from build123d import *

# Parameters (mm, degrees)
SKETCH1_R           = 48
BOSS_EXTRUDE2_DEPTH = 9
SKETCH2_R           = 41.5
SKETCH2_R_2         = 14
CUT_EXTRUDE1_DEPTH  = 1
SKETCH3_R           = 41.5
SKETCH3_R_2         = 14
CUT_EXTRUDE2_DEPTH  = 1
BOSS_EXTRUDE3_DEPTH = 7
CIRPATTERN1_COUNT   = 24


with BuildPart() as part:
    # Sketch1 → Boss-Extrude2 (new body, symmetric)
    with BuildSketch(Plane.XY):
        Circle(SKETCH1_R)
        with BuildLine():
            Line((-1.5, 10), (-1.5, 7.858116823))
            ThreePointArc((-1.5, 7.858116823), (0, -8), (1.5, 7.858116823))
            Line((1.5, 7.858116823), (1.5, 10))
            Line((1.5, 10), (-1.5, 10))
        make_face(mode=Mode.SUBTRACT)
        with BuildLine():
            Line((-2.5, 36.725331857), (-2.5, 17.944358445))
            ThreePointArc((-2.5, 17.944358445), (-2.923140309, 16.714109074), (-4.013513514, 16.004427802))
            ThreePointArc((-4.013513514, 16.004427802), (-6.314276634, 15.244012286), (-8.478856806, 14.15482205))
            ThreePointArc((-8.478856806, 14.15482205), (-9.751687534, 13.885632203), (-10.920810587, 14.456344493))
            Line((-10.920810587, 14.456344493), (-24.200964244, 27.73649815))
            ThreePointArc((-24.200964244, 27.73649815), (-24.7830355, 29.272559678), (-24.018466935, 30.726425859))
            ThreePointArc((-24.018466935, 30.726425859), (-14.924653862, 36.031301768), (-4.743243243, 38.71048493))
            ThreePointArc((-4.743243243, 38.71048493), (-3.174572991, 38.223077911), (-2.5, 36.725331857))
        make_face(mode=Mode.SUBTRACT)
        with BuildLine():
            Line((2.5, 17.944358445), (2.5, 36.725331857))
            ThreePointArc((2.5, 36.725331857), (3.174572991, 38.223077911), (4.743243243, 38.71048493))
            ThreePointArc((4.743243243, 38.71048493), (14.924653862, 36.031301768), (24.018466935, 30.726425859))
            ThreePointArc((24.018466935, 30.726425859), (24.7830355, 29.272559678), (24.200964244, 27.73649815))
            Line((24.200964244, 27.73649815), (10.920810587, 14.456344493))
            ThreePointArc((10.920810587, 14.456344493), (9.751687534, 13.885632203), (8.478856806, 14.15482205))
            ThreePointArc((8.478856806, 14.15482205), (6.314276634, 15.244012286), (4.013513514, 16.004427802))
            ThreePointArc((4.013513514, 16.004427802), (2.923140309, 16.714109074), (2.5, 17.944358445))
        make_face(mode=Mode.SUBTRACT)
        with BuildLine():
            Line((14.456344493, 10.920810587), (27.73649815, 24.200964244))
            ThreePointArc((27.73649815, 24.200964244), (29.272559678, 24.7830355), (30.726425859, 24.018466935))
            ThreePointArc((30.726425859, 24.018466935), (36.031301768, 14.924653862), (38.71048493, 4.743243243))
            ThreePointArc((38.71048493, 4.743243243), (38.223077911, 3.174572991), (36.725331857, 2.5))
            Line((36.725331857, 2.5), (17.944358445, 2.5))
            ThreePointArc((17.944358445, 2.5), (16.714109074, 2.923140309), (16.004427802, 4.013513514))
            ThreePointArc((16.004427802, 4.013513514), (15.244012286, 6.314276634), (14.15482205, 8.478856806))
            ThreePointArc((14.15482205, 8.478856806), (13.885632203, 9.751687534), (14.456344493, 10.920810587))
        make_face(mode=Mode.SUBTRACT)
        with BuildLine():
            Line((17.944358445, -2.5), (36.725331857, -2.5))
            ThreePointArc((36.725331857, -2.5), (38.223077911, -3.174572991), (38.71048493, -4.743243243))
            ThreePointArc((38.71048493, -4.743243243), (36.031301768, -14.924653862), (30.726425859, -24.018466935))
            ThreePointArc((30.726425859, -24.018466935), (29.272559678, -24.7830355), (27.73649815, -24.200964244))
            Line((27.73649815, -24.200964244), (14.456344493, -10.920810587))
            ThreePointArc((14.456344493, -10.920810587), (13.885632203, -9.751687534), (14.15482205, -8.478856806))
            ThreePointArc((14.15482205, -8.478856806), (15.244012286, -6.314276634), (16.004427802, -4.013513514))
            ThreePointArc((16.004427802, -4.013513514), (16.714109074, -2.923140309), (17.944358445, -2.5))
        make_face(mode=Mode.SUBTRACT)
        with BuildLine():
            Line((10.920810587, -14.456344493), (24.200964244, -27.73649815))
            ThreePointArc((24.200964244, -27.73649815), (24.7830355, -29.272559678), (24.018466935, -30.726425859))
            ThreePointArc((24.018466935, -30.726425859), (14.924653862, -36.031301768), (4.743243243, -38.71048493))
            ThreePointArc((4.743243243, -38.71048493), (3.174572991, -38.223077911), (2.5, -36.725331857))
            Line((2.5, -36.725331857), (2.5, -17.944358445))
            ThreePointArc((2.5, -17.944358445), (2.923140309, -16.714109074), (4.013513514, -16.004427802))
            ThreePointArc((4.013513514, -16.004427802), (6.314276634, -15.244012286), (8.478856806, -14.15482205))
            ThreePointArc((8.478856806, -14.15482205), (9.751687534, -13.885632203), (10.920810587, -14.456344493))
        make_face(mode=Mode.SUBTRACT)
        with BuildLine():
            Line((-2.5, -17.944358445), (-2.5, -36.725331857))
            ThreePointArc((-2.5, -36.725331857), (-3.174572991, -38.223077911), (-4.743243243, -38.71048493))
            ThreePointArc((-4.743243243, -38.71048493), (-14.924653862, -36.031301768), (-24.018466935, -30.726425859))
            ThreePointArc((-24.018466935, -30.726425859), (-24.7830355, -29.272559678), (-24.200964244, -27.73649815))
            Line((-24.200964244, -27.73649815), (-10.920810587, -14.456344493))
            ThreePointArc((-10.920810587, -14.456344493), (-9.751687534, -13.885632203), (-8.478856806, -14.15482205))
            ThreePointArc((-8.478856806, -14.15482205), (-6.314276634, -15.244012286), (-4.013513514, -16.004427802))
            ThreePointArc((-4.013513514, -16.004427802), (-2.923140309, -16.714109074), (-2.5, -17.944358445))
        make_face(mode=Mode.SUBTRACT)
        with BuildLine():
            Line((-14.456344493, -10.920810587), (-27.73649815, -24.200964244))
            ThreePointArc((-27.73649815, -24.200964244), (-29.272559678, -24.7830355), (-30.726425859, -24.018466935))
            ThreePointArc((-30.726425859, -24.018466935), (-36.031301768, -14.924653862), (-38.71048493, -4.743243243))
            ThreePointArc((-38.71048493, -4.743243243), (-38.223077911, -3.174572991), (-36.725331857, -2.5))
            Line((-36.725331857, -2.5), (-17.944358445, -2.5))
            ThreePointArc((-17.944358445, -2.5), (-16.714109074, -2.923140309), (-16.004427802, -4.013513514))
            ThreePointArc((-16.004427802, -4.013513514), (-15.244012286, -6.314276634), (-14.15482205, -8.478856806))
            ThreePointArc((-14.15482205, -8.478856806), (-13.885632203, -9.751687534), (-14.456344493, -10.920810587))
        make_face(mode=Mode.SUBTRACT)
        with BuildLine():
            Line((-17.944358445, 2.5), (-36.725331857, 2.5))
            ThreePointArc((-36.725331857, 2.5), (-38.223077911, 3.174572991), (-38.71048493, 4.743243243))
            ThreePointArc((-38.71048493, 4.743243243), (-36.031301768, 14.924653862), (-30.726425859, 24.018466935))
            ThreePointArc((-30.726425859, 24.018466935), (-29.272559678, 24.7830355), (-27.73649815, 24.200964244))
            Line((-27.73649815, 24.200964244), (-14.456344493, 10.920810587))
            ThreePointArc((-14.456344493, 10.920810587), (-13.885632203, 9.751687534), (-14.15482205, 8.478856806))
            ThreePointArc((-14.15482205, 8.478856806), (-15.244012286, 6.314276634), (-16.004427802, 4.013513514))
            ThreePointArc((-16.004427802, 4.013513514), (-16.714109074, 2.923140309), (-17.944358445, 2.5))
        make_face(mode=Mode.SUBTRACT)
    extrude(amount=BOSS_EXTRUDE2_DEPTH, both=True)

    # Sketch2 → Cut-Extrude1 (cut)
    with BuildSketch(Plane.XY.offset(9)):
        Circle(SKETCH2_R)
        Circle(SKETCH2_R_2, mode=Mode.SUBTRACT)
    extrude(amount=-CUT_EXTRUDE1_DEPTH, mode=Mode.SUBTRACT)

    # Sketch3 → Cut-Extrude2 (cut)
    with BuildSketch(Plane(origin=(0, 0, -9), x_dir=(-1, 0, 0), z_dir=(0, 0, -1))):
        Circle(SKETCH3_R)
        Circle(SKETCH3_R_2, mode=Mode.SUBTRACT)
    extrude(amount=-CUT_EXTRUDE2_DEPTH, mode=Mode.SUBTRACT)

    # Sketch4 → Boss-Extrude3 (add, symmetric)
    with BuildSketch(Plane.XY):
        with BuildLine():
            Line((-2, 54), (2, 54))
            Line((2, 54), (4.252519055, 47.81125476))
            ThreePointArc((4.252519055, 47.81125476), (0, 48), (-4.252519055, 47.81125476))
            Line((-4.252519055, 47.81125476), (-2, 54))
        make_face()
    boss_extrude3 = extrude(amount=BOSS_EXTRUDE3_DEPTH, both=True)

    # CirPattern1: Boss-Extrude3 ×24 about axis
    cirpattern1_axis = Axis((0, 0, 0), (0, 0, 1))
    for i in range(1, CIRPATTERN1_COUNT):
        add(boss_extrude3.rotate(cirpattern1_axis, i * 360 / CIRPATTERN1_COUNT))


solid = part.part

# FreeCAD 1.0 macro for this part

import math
import FreeCAD as App
import Part
import Sketcher

V = App.Vector
Q = App.Units.Quantity

doc = App.newDocument("Part")
params = doc.addObject("Spreadsheet::Sheet", "Params")
for row, (alias, value) in enumerate([
    ("sketch1_diameter", "96 mm"),
    ("sketch1_radius", "2 mm"),
    ("sketch1_radius2", "39 mm"),
    ("sketch1_radius3", "8 mm"),
    ("sketch1_radius4", "16.5 mm"),
    ("pad1_length", "18 mm"),
    ("sketch2_diameter", "83 mm"),
    ("sketch2_diameter2", "28 mm"),
    ("pocket1_length", "1 mm"),
    ("sketch3_diameter", "83 mm"),
    ("sketch3_diameter2", "28 mm"),
    ("pocket2_length", "1 mm"),
    ("sketch4_radius", "48 mm"),
    ("sketch4_width", "4 mm"),
    ("pad2_length", "14 mm"),
], start=1):
    params.set(f"A{row}", alias)
    params.set(f"B{row}", "=" + value)
    params.setAlias(f"B{row}", alias)

body = doc.addObject("PartDesign::Body", "Body")

sketch1 = body.newObject("Sketcher::SketchObject", "Sketch")
sketch1.AttachmentSupport = (doc.getObject("XY_Plane"), [""])
sketch1.MapMode = "FlatFace"
sketch1.addGeometry(Part.Circle(V(0, 0, 0), V(0, 0, 1), 48), False)
sketch1.addGeometry(Part.ArcOfCircle(Part.Circle(V(-4.5, -17.944358, 0), V(0, 0, 1), 2), math.radians(0), math.radians(75.921961)), False)
sketch1.addGeometry(Part.LineSegment(V(-2.5, -17.944358, 0), V(-2.5, -36.725332, 0)), False)
sketch1.addGeometry(Part.ArcOfCircle(Part.Circle(V(-4.5, -36.725332, 0), V(0, 0, 1), 2), math.radians(-96.9857), math.radians(0)), False)
sketch1.addGeometry(Part.ArcOfCircle(Part.Circle(V(0, 0, 0), V(0, 0, 1), 39), math.radians(-128.0143), math.radians(-96.9857)), False)
sketch1.addGeometry(Part.ArcOfCircle(Part.Circle(V(-22.786751, -29.150712, 0), V(0, 0, 1), 2), math.radians(135), math.radians(231.9857)), False)
sketch1.addGeometry(Part.LineSegment(V(-24.200964, -27.736498, 0), V(-10.920811, -14.456344, 0)), False)
sketch1.addGeometry(Part.ArcOfCircle(Part.Circle(V(-9.506597, -15.870558, 0), V(0, 0, 1), 2), math.radians(59.078039), math.radians(135)), False)
sketch1.addGeometry(Part.ArcOfCircle(Part.Circle(V(0, 0, 0), V(0, 0, 1), 16.5), math.radians(-120.921961), math.radians(-104.078039)), False)
sketch1.addGeometry(Part.ArcOfCircle(Part.Circle(V(-15.870558, -9.506597, 0), V(0, 0, 1), 2), math.radians(-45), math.radians(30.921961)), False)
sketch1.addGeometry(Part.LineSegment(V(-14.456344, -10.920811, 0), V(-27.736498, -24.200964, 0)), False)
sketch1.addGeometry(Part.ArcOfCircle(Part.Circle(V(-29.150712, -22.786751, 0), V(0, 0, 1), 2), math.radians(-141.9857), math.radians(-45)), False)
sketch1.addGeometry(Part.ArcOfCircle(Part.Circle(V(0, 0, 0), V(0, 0, 1), 39), math.radians(-173.0143), math.radians(-141.9857)), False)
sketch1.addGeometry(Part.ArcOfCircle(Part.Circle(V(-36.725332, -4.5, 0), V(0, 0, 1), 2), math.radians(90), math.radians(186.9857)), False)
sketch1.addGeometry(Part.LineSegment(V(-36.725332, -2.5, 0), V(-17.944358, -2.5, 0)), False)
sketch1.addGeometry(Part.ArcOfCircle(Part.Circle(V(-17.944358, -4.5, 0), V(0, 0, 1), 2), math.radians(14.078039), math.radians(90)), False)
sketch1.addGeometry(Part.ArcOfCircle(Part.Circle(V(0, 0, 0), V(0, 0, 1), 16.5), math.radians(-165.921961), math.radians(-149.078039)), False)
sketch1.addGeometry(Part.ArcOfCircle(Part.Circle(V(9.506597, -15.870558, 0), V(0, 0, 1), 2), math.radians(45), math.radians(120.921961)), False)
sketch1.addGeometry(Part.LineSegment(V(10.920811, -14.456344, 0), V(24.200964, -27.736498, 0)), False)
sketch1.addGeometry(Part.ArcOfCircle(Part.Circle(V(22.786751, -29.150712, 0), V(0, 0, 1), 2), math.radians(-51.9857), math.radians(45)), False)
sketch1.addGeometry(Part.ArcOfCircle(Part.Circle(V(0, 0, 0), V(0, 0, 1), 39), math.radians(-83.0143), math.radians(-51.9857)), False)
sketch1.addGeometry(Part.ArcOfCircle(Part.Circle(V(4.5, -36.725332, 0), V(0, 0, 1), 2), math.radians(-180), math.radians(-83.0143)), False)
sketch1.addGeometry(Part.LineSegment(V(2.5, -36.725332, 0), V(2.5, -17.944358, 0)), False)
sketch1.addGeometry(Part.ArcOfCircle(Part.Circle(V(4.5, -17.944358, 0), V(0, 0, 1), 2), math.radians(104.078039), math.radians(180)), False)
sketch1.addGeometry(Part.ArcOfCircle(Part.Circle(V(0, 0, 0), V(0, 0, 1), 16.5), math.radians(-75.921961), math.radians(-59.078039)), False)
sketch1.addGeometry(Part.ArcOfCircle(Part.Circle(V(17.944358, -4.5, 0), V(0, 0, 1), 2), math.radians(90), math.radians(165.921961)), False)
sketch1.addGeometry(Part.LineSegment(V(17.944358, -2.5, 0), V(36.725332, -2.5, 0)), False)
sketch1.addGeometry(Part.ArcOfCircle(Part.Circle(V(36.725332, -4.5, 0), V(0, 0, 1), 2), math.radians(-6.9857), math.radians(90)), False)
sketch1.addGeometry(Part.ArcOfCircle(Part.Circle(V(0, 0, 0), V(0, 0, 1), 39), math.radians(-38.0143), math.radians(-6.9857)), False)
sketch1.addGeometry(Part.ArcOfCircle(Part.Circle(V(29.150712, -22.786751, 0), V(0, 0, 1), 2), math.radians(-135), math.radians(-38.0143)), False)
sketch1.addGeometry(Part.LineSegment(V(27.736498, -24.200964, 0), V(14.456344, -10.920811, 0)), False)
sketch1.addGeometry(Part.ArcOfCircle(Part.Circle(V(15.870558, -9.506597, 0), V(0, 0, 1), 2), math.radians(149.078039), math.radians(225)), False)
sketch1.addGeometry(Part.ArcOfCircle(Part.Circle(V(0, 0, 0), V(0, 0, 1), 16.5), math.radians(-30.921961), math.radians(-14.078039)), False)
sketch1.addGeometry(Part.ArcOfCircle(Part.Circle(V(-17.944358, 4.5, 0), V(0, 0, 1), 2), math.radians(-90), math.radians(-14.078039)), False)
sketch1.addGeometry(Part.LineSegment(V(-17.944358, 2.5, 0), V(-36.725332, 2.5, 0)), False)
sketch1.addGeometry(Part.ArcOfCircle(Part.Circle(V(-36.725332, 4.5, 0), V(0, 0, 1), 2), math.radians(173.0143), math.radians(270)), False)
sketch1.addGeometry(Part.ArcOfCircle(Part.Circle(V(0, 0, 0), V(0, 0, 1), 39), math.radians(141.9857), math.radians(173.0143)), False)
sketch1.addGeometry(Part.ArcOfCircle(Part.Circle(V(-29.150712, 22.786751, 0), V(0, 0, 1), 2), math.radians(45), math.radians(141.9857)), False)
sketch1.addGeometry(Part.LineSegment(V(-27.736498, 24.200964, 0), V(-14.456344, 10.920811, 0)), False)
sketch1.addGeometry(Part.ArcOfCircle(Part.Circle(V(-15.870558, 9.506597, 0), V(0, 0, 1), 2), math.radians(-30.921961), math.radians(45)), False)
sketch1.addGeometry(Part.ArcOfCircle(Part.Circle(V(0, 0, 0), V(0, 0, 1), 16.5), math.radians(149.078039), math.radians(165.921961)), False)
sketch1.addGeometry(Part.ArcOfCircle(Part.Circle(V(-4.5, 36.725332, 0), V(0, 0, 1), 2), math.radians(0), math.radians(96.9857)), False)
sketch1.addGeometry(Part.LineSegment(V(-2.5, 36.725332, 0), V(-2.5, 17.944358, 0)), False)
sketch1.addGeometry(Part.ArcOfCircle(Part.Circle(V(-4.5, 17.944358, 0), V(0, 0, 1), 2), math.radians(-75.921961), math.radians(0)), False)
sketch1.addGeometry(Part.ArcOfCircle(Part.Circle(V(0, 0, 0), V(0, 0, 1), 16.5), math.radians(104.078039), math.radians(120.921961)), False)
sketch1.addGeometry(Part.ArcOfCircle(Part.Circle(V(-9.506597, 15.870558, 0), V(0, 0, 1), 2), math.radians(-135), math.radians(-59.078039)), False)
sketch1.addGeometry(Part.LineSegment(V(-10.920811, 14.456344, 0), V(-24.200964, 27.736498, 0)), False)
sketch1.addGeometry(Part.ArcOfCircle(Part.Circle(V(-22.786751, 29.150712, 0), V(0, 0, 1), 2), math.radians(128.0143), math.radians(225)), False)
sketch1.addGeometry(Part.ArcOfCircle(Part.Circle(V(0, 0, 0), V(0, 0, 1), 39), math.radians(96.9857), math.radians(128.0143)), False)
sketch1.addGeometry(Part.LineSegment(V(-1.5, 7.858117, 0), V(-1.5, 10, 0)), False)
sketch1.addGeometry(Part.LineSegment(V(-1.5, 10, 0), V(1.5, 10, 0)), False)
sketch1.addGeometry(Part.LineSegment(V(1.5, 10, 0), V(1.5, 7.858117, 0)), False)
sketch1.addGeometry(Part.ArcOfCircle(Part.Circle(V(0, 0, 0), V(0, 0, 1), 8), math.radians(100.806923), math.radians(439.193077)), False)
sketch1.addGeometry(Part.ArcOfCircle(Part.Circle(V(15.870558, 9.506597, 0), V(0, 0, 1), 2), math.radians(135), math.radians(210.921961)), False)
sketch1.addGeometry(Part.LineSegment(V(14.456344, 10.920811, 0), V(27.736498, 24.200964, 0)), False)
sketch1.addGeometry(Part.ArcOfCircle(Part.Circle(V(29.150712, 22.786751, 0), V(0, 0, 1), 2), math.radians(38.0143), math.radians(135)), False)
sketch1.addGeometry(Part.ArcOfCircle(Part.Circle(V(0, 0, 0), V(0, 0, 1), 39), math.radians(6.9857), math.radians(38.0143)), False)
sketch1.addGeometry(Part.ArcOfCircle(Part.Circle(V(36.725332, 4.5, 0), V(0, 0, 1), 2), math.radians(-90), math.radians(6.9857)), False)
sketch1.addGeometry(Part.LineSegment(V(36.725332, 2.5, 0), V(17.944358, 2.5, 0)), False)
sketch1.addGeometry(Part.ArcOfCircle(Part.Circle(V(17.944358, 4.5, 0), V(0, 0, 1), 2), math.radians(-165.921961), math.radians(-90)), False)
sketch1.addGeometry(Part.ArcOfCircle(Part.Circle(V(0, 0, 0), V(0, 0, 1), 16.5), math.radians(14.078039), math.radians(30.921961)), False)
sketch1.addGeometry(Part.ArcOfCircle(Part.Circle(V(4.5, 17.944358, 0), V(0, 0, 1), 2), math.radians(180), math.radians(255.921961)), False)
sketch1.addGeometry(Part.LineSegment(V(2.5, 17.944358, 0), V(2.5, 36.725332, 0)), False)
sketch1.addGeometry(Part.ArcOfCircle(Part.Circle(V(4.5, 36.725332, 0), V(0, 0, 1), 2), math.radians(83.0143), math.radians(180)), False)
sketch1.addGeometry(Part.ArcOfCircle(Part.Circle(V(0, 0, 0), V(0, 0, 1), 39), math.radians(51.9857), math.radians(83.0143)), False)
sketch1.addGeometry(Part.ArcOfCircle(Part.Circle(V(22.786751, 29.150712, 0), V(0, 0, 1), 2), math.radians(-45), math.radians(51.9857)), False)
sketch1.addGeometry(Part.LineSegment(V(24.200964, 27.736498, 0), V(10.920811, 14.456344, 0)), False)
sketch1.addGeometry(Part.ArcOfCircle(Part.Circle(V(9.506597, 15.870558, 0), V(0, 0, 1), 2), math.radians(-120.921961), math.radians(-45)), False)
sketch1.addGeometry(Part.ArcOfCircle(Part.Circle(V(0, 0, 0), V(0, 0, 1), 16.5), math.radians(59.078039), math.radians(75.921961)), False)
sketch1.addConstraint(Sketcher.Constraint("Tangent", 1, 1, 2, 1))
sketch1.addConstraint(Sketcher.Constraint("Tangent", 2, 2, 3, 2))
sketch1.addConstraint(Sketcher.Constraint("Tangent", 3, 1, 4, 2))
sketch1.addConstraint(Sketcher.Constraint("Tangent", 4, 1, 5, 2))
sketch1.addConstraint(Sketcher.Constraint("Tangent", 5, 1, 6, 1))
sketch1.addConstraint(Sketcher.Constraint("Tangent", 6, 2, 7, 2))
sketch1.addConstraint(Sketcher.Constraint("Tangent", 7, 1, 8, 1))
sketch1.addConstraint(Sketcher.Constraint("Tangent", 8, 2, 1, 2))
sketch1.addConstraint(Sketcher.Constraint("Tangent", 9, 1, 10, 1))
sketch1.addConstraint(Sketcher.Constraint("Tangent", 10, 2, 11, 2))
sketch1.addConstraint(Sketcher.Constraint("Tangent", 11, 1, 12, 2))
sketch1.addConstraint(Sketcher.Constraint("Tangent", 12, 1, 13, 2))
sketch1.addConstraint(Sketcher.Constraint("Tangent", 13, 1, 14, 1))
sketch1.addConstraint(Sketcher.Constraint("Tangent", 14, 2, 15, 2))
sketch1.addConstraint(Sketcher.Constraint("Tangent", 15, 1, 16, 1))
sketch1.addConstraint(Sketcher.Constraint("Tangent", 16, 2, 9, 2))
sketch1.addConstraint(Sketcher.Constraint("Tangent", 17, 1, 18, 1))
sketch1.addConstraint(Sketcher.Constraint("Tangent", 18, 2, 19, 2))
sketch1.addConstraint(Sketcher.Constraint("Tangent", 19, 1, 20, 2))
sketch1.addConstraint(Sketcher.Constraint("Tangent", 20, 1, 21, 2))
sketch1.addConstraint(Sketcher.Constraint("Tangent", 21, 1, 22, 1))
sketch1.addConstraint(Sketcher.Constraint("Tangent", 22, 2, 23, 2))
sketch1.addConstraint(Sketcher.Constraint("Tangent", 23, 1, 24, 1))
sketch1.addConstraint(Sketcher.Constraint("Tangent", 24, 2, 17, 2))
sketch1.addConstraint(Sketcher.Constraint("Tangent", 25, 1, 26, 1))
sketch1.addConstraint(Sketcher.Constraint("Tangent", 26, 2, 27, 2))
sketch1.addConstraint(Sketcher.Constraint("Tangent", 27, 1, 28, 2))
sketch1.addConstraint(Sketcher.Constraint("Tangent", 28, 1, 29, 2))
sketch1.addConstraint(Sketcher.Constraint("Tangent", 29, 1, 30, 1))
sketch1.addConstraint(Sketcher.Constraint("Tangent", 30, 2, 31, 2))
sketch1.addConstraint(Sketcher.Constraint("Tangent", 31, 1, 32, 1))
sketch1.addConstraint(Sketcher.Constraint("Tangent", 32, 2, 25, 2))
sketch1.addConstraint(Sketcher.Constraint("Tangent", 33, 1, 34, 1))
sketch1.addConstraint(Sketcher.Constraint("Tangent", 34, 2, 35, 2))
sketch1.addConstraint(Sketcher.Constraint("Tangent", 35, 1, 36, 2))
sketch1.addConstraint(Sketcher.Constraint("Tangent", 36, 1, 37, 2))
sketch1.addConstraint(Sketcher.Constraint("Tangent", 37, 1, 38, 1))
sketch1.addConstraint(Sketcher.Constraint("Tangent", 38, 2, 39, 2))
sketch1.addConstraint(Sketcher.Constraint("Tangent", 39, 1, 40, 1))
sketch1.addConstraint(Sketcher.Constraint("Tangent", 40, 2, 33, 2))
sketch1.addConstraint(Sketcher.Constraint("Tangent", 41, 1, 42, 1))
sketch1.addConstraint(Sketcher.Constraint("Tangent", 42, 2, 43, 2))
sketch1.addConstraint(Sketcher.Constraint("Tangent", 43, 1, 44, 1))
sketch1.addConstraint(Sketcher.Constraint("Tangent", 44, 2, 45, 2))
sketch1.addConstraint(Sketcher.Constraint("Tangent", 45, 1, 46, 1))
sketch1.addConstraint(Sketcher.Constraint("Tangent", 46, 2, 47, 2))
sketch1.addConstraint(Sketcher.Constraint("Tangent", 47, 1, 48, 2))
sketch1.addConstraint(Sketcher.Constraint("Tangent", 48, 1, 41, 2))
sketch1.addConstraint(Sketcher.Constraint("Coincident", 49, 2, 50, 1))
sketch1.addConstraint(Sketcher.Constraint("Coincident", 50, 2, 51, 1))
sketch1.addConstraint(Sketcher.Constraint("Coincident", 51, 2, 52, 2))
sketch1.addConstraint(Sketcher.Constraint("Coincident", 52, 1, 49, 1))
sketch1.addConstraint(Sketcher.Constraint("Tangent", 53, 1, 54, 1))
sketch1.addConstraint(Sketcher.Constraint("Tangent", 54, 2, 55, 2))
sketch1.addConstraint(Sketcher.Constraint("Tangent", 55, 1, 56, 2))
sketch1.addConstraint(Sketcher.Constraint("Tangent", 56, 1, 57, 2))
sketch1.addConstraint(Sketcher.Constraint("Tangent", 57, 1, 58, 1))
sketch1.addConstraint(Sketcher.Constraint("Tangent", 58, 2, 59, 2))
sketch1.addConstraint(Sketcher.Constraint("Tangent", 59, 1, 60, 1))
sketch1.addConstraint(Sketcher.Constraint("Tangent", 60, 2, 53, 2))
sketch1.addConstraint(Sketcher.Constraint("Tangent", 61, 1, 62, 1))
sketch1.addConstraint(Sketcher.Constraint("Tangent", 62, 2, 63, 2))
sketch1.addConstraint(Sketcher.Constraint("Tangent", 63, 1, 64, 2))
sketch1.addConstraint(Sketcher.Constraint("Tangent", 64, 1, 65, 2))
sketch1.addConstraint(Sketcher.Constraint("Tangent", 65, 1, 66, 1))
sketch1.addConstraint(Sketcher.Constraint("Tangent", 66, 2, 67, 2))
sketch1.addConstraint(Sketcher.Constraint("Tangent", 67, 1, 68, 1))
sketch1.addConstraint(Sketcher.Constraint("Tangent", 68, 2, 61, 2))
sketch1.addConstraint(Sketcher.Constraint("Vertical", 2))
sketch1.addConstraint(Sketcher.Constraint("Horizontal", 14))
sketch1.addConstraint(Sketcher.Constraint("Vertical", 22))
sketch1.addConstraint(Sketcher.Constraint("Horizontal", 26))
sketch1.addConstraint(Sketcher.Constraint("Horizontal", 34))
sketch1.addConstraint(Sketcher.Constraint("Vertical", 42))
sketch1.addConstraint(Sketcher.Constraint("Vertical", 49))
sketch1.addConstraint(Sketcher.Constraint("Horizontal", 50))
sketch1.addConstraint(Sketcher.Constraint("Vertical", 51))
sketch1.addConstraint(Sketcher.Constraint("Horizontal", 58))
sketch1.addConstraint(Sketcher.Constraint("Vertical", 62))
sketch1.addConstraint(Sketcher.Constraint("Coincident", 0, 3, -1, 1))
sketch1.addConstraint(Sketcher.Constraint("Coincident", 4, 3, -1, 1))
sketch1.addConstraint(Sketcher.Constraint("Coincident", 8, 3, -1, 1))
sketch1.addConstraint(Sketcher.Constraint("Coincident", 12, 3, -1, 1))
sketch1.addConstraint(Sketcher.Constraint("Coincident", 16, 3, -1, 1))
sketch1.addConstraint(Sketcher.Constraint("Coincident", 20, 3, -1, 1))
sketch1.addConstraint(Sketcher.Constraint("Coincident", 24, 3, -1, 1))
sketch1.addConstraint(Sketcher.Constraint("Coincident", 28, 3, -1, 1))
sketch1.addConstraint(Sketcher.Constraint("Coincident", 32, 3, -1, 1))
sketch1.addConstraint(Sketcher.Constraint("Coincident", 36, 3, -1, 1))
sketch1.addConstraint(Sketcher.Constraint("Coincident", 40, 3, -1, 1))
sketch1.addConstraint(Sketcher.Constraint("Coincident", 44, 3, -1, 1))
sketch1.addConstraint(Sketcher.Constraint("Coincident", 48, 3, -1, 1))
sketch1.addConstraint(Sketcher.Constraint("Coincident", 52, 3, -1, 1))
sketch1.addConstraint(Sketcher.Constraint("Coincident", 56, 3, -1, 1))
sketch1.addConstraint(Sketcher.Constraint("Coincident", 60, 3, -1, 1))
sketch1.addConstraint(Sketcher.Constraint("Coincident", 64, 3, -1, 1))
sketch1.addConstraint(Sketcher.Constraint("Coincident", 68, 3, -1, 1))
sketch1.addConstraint(Sketcher.Constraint("Equal", 1, 3))
sketch1.addConstraint(Sketcher.Constraint("Equal", 3, 5))
sketch1.addConstraint(Sketcher.Constraint("Equal", 5, 7))
sketch1.addConstraint(Sketcher.Constraint("Equal", 7, 9))
sketch1.addConstraint(Sketcher.Constraint("Equal", 9, 11))
sketch1.addConstraint(Sketcher.Constraint("Equal", 4, 12))
sketch1.addConstraint(Sketcher.Constraint("Equal", 11, 13))
sketch1.addConstraint(Sketcher.Constraint("Equal", 13, 15))
sketch1.addConstraint(Sketcher.Constraint("Equal", 8, 16))
sketch1.addConstraint(Sketcher.Constraint("Equal", 15, 17))
sketch1.addConstraint(Sketcher.Constraint("Equal", 17, 19))
sketch1.addConstraint(Sketcher.Constraint("Equal", 12, 20))
sketch1.addConstraint(Sketcher.Constraint("Equal", 19, 21))
sketch1.addConstraint(Sketcher.Constraint("Equal", 21, 23))
sketch1.addConstraint(Sketcher.Constraint("Equal", 16, 24))
sketch1.addConstraint(Sketcher.Constraint("Equal", 23, 25))
sketch1.addConstraint(Sketcher.Constraint("Equal", 25, 27))
sketch1.addConstraint(Sketcher.Constraint("Equal", 20, 28))
sketch1.addConstraint(Sketcher.Constraint("Equal", 27, 29))
sketch1.addConstraint(Sketcher.Constraint("Equal", 29, 31))
sketch1.addConstraint(Sketcher.Constraint("Equal", 24, 32))
sketch1.addConstraint(Sketcher.Constraint("Equal", 31, 33))
sketch1.addConstraint(Sketcher.Constraint("Equal", 33, 35))
sketch1.addConstraint(Sketcher.Constraint("Equal", 28, 36))
sketch1.addConstraint(Sketcher.Constraint("Equal", 35, 37))
sketch1.addConstraint(Sketcher.Constraint("Equal", 37, 39))
sketch1.addConstraint(Sketcher.Constraint("Equal", 32, 40))
sketch1.addConstraint(Sketcher.Constraint("Equal", 39, 41))
sketch1.addConstraint(Sketcher.Constraint("Equal", 41, 43))
sketch1.addConstraint(Sketcher.Constraint("Equal", 40, 44))
sketch1.addConstraint(Sketcher.Constraint("Equal", 43, 45))
sketch1.addConstraint(Sketcher.Constraint("Equal", 45, 47))
sketch1.addConstraint(Sketcher.Constraint("Equal", 36, 48))
sketch1.addConstraint(Sketcher.Constraint("Equal", 47, 53))
sketch1.addConstraint(Sketcher.Constraint("Equal", 53, 55))
sketch1.addConstraint(Sketcher.Constraint("Equal", 48, 56))
sketch1.addConstraint(Sketcher.Constraint("Equal", 55, 57))
sketch1.addConstraint(Sketcher.Constraint("Equal", 57, 59))
sketch1.addConstraint(Sketcher.Constraint("Equal", 44, 60))
sketch1.addConstraint(Sketcher.Constraint("Equal", 59, 61))
sketch1.addConstraint(Sketcher.Constraint("Equal", 61, 63))
sketch1.addConstraint(Sketcher.Constraint("Equal", 56, 64))
sketch1.addConstraint(Sketcher.Constraint("Equal", 63, 65))
sketch1.addConstraint(Sketcher.Constraint("Equal", 65, 67))
sketch1.addConstraint(Sketcher.Constraint("Equal", 60, 68))
sketch1.addConstraint(Sketcher.Constraint("Symmetric", 29, 1, 37, 1, -1, 1))
sketch1.addConstraint(Sketcher.Constraint("Symmetric", 17, 1, 45, 1, -1, 1))
sketch1.addConstraint(Sketcher.Constraint("Symmetric", 9, 1, 53, 1, -1, 1))
sketch1.addConstraint(Sketcher.Constraint("Symmetric", 5, 1, 65, 1, -1, 1))
sketch1.addConstraint(Sketcher.Constraint("Symmetric", 6, 2, 17, 1, -2))
sketch1.addConstraint(Sketcher.Constraint("Symmetric", 10, 2, 29, 1, -2))
sketch1.addConstraint(Sketcher.Constraint("Parallel", 6, 10))
sketch1.addConstraint(Sketcher.Constraint("Perpendicular", 10, 18))
sketch1.addConstraint(Sketcher.Constraint("Horizontal", 3, 3, 21, 3))
sketch1.addConstraint(Sketcher.Constraint("Horizontal", 15, 3, 25, 3))
sketch1.addConstraint(Sketcher.Constraint("Horizontal", 35, 3, 57, 3))
sketch1.addConstraint(Sketcher.Constraint("Horizontal", 43, 3, 61, 3))
sketch1.addConstraint(Sketcher.Constraint("Horizontal", 51, 2, 52, 1))
sketch1.addConstraint(Sketcher.Constraint("Vertical", 15, 3, 33, 3))
sketch1.addConstraint(Sketcher.Constraint("Vertical", 3, 3, 41, 3))
sketch1.addConstraint(Sketcher.Constraint("Equal", 58, 2))
sketch1.addConstraint(Sketcher.Constraint("Equal", 6, 10))
sketch1.addConstraint(Sketcher.Constraint("Diameter", 0, 96.0))
sketch1.addConstraint(Sketcher.Constraint("Radius", 1, 2.0))
sketch1.addConstraint(Sketcher.Constraint("Radius", 4, 39.0))
sketch1.addConstraint(Sketcher.Constraint("Radius", 52, 8.0))
sketch1.addConstraint(Sketcher.Constraint("Radius", 8, 16.5))
sketch1.addConstraint(Sketcher.Constraint("DistanceX", 50, 1, 50, 2, 3.0))
sketch1.addConstraint(Sketcher.Constraint("DistanceY", -1, 1, 49, 2, 10.0))
sketch1.addConstraint(Sketcher.Constraint("DistanceX", 1, 3, -1, 1, 4.5))
sketch1.addConstraint(Sketcher.Constraint("DistanceY", 5, 1, -1, 1, 27.736498))
sketch1.setExpression("Constraints[159]", "Params.sketch1_diameter")
sketch1.setExpression("Constraints[160]", "Params.sketch1_radius")
sketch1.setExpression("Constraints[161]", "Params.sketch1_radius2")
sketch1.setExpression("Constraints[162]", "Params.sketch1_radius3")
sketch1.setExpression("Constraints[163]", "Params.sketch1_radius4")
pad1 = body.newObject("PartDesign::Pad", "Pad")
pad1.Profile = sketch1
pad1.setExpression("Length", "Params.pad1_length")
pad1.Midplane = True

sketch2 = body.newObject("Sketcher::SketchObject", "Sketch001")
sketch2.AttachmentSupport = (doc.getObject("XY_Plane"), [""])
sketch2.MapMode = "FlatFace"
sketch2.AttachmentOffset = App.Placement(V(0, 0, 9), App.Rotation())
sketch2.addGeometry(Part.Circle(V(0, 0, 0), V(0, 0, 1), 41.5), False)
sketch2.addGeometry(Part.Circle(V(0, 0, 0), V(0, 0, 1), 14), False)
sketch2.addConstraint(Sketcher.Constraint("Coincident", 0, 3, -1, 1))
sketch2.addConstraint(Sketcher.Constraint("Coincident", 1, 3, -1, 1))
sketch2.addConstraint(Sketcher.Constraint("Diameter", 0, 83.0))
sketch2.addConstraint(Sketcher.Constraint("Diameter", 1, 28.0))
sketch2.setExpression("Constraints[2]", "Params.sketch2_diameter")
sketch2.setExpression("Constraints[3]", "Params.sketch2_diameter2")
pocket1 = body.newObject("PartDesign::Pocket", "Pocket")
pocket1.Profile = sketch2
pocket1.setExpression("Length", "Params.pocket1_length")

sketch3 = body.newObject("Sketcher::SketchObject", "Sketch002")
sketch3.AttachmentSupport = (doc.getObject("XY_Plane"), [""])
sketch3.MapMode = "FlatFace"
sketch3.AttachmentOffset = App.Placement(V(0, 0, -9), App.Rotation())
sketch3.addGeometry(Part.Circle(V(0, 0, 0), V(0, 0, 1), 41.5), False)
sketch3.addGeometry(Part.Circle(V(0, 0, 0), V(0, 0, 1), 14), False)
sketch3.addConstraint(Sketcher.Constraint("Coincident", 0, 3, -1, 1))
sketch3.addConstraint(Sketcher.Constraint("Coincident", 1, 3, -1, 1))
sketch3.addConstraint(Sketcher.Constraint("Diameter", 0, 83.0))
sketch3.addConstraint(Sketcher.Constraint("Diameter", 1, 28.0))
sketch3.setExpression("Constraints[2]", "Params.sketch3_diameter")
sketch3.setExpression("Constraints[3]", "Params.sketch3_diameter2")
pocket2 = body.newObject("PartDesign::Pocket", "Pocket001")
pocket2.Profile = sketch3
pocket2.setExpression("Length", "Params.pocket2_length")
pocket2.Reversed = True

sketch4 = body.newObject("Sketcher::SketchObject", "Sketch003")
sketch4.AttachmentSupport = (doc.getObject("XY_Plane"), [""])
sketch4.MapMode = "FlatFace"
sketch4.addGeometry(Part.LineSegment(V(2, 54, 0), V(-2, 54, 0)), False)
sketch4.addGeometry(Part.LineSegment(V(-2, 54, 0), V(-4.252519, 47.811255, 0)), False)
sketch4.addGeometry(Part.ArcOfCircle(Part.Circle(V(0, 0, 0), V(0, 0, 1), 48), math.radians(84.917265), math.radians(95.082735)), False)
sketch4.addGeometry(Part.LineSegment(V(4.252519, 47.811255, 0), V(2, 54, 0)), False)
sketch4.addConstraint(Sketcher.Constraint("Coincident", 0, 2, 1, 1))
sketch4.addConstraint(Sketcher.Constraint("Coincident", 1, 2, 2, 2))
sketch4.addConstraint(Sketcher.Constraint("Coincident", 2, 1, 3, 1))
sketch4.addConstraint(Sketcher.Constraint("Coincident", 3, 2, 0, 1))
sketch4.addConstraint(Sketcher.Constraint("Horizontal", 0))
sketch4.addConstraint(Sketcher.Constraint("Coincident", 2, 3, -1, 1))
sketch4.addConstraint(Sketcher.Constraint("Horizontal", 1, 2, 2, 1))
sketch4.addConstraint(Sketcher.Constraint("Equal", 1, 3))
sketch4.addConstraint(Sketcher.Constraint("Radius", 2, 48.0))
sketch4.addConstraint(Sketcher.Constraint("DistanceX", 0, 2, 0, 1, 4.0))
sketch4.addConstraint(Sketcher.Constraint("Angle", 1, Q("-110 deg")))
sketch4.addConstraint(Sketcher.Constraint("DistanceY", -1, 1, 0, 2, 54.0))
sketch4.setExpression("Constraints[8]", "Params.sketch4_radius")
sketch4.setExpression("Constraints[9]", "Params.sketch4_width")
pad2 = body.newObject("PartDesign::Pad", "Pad001")
pad2.Profile = sketch4
pad2.setExpression("Length", "Params.pad2_length")
pad2.Midplane = True
doc.recompute()

polarpattern = body.newObject("PartDesign::PolarPattern", "PolarPattern")
polarpattern.Originals = [pad2]
polarpattern.Axis = (doc.getObject("Z_Axis"), [""])
polarpattern.Angle = 360
polarpattern.Occurrences = 24
body.Tip = polarpattern

doc.recompute()
